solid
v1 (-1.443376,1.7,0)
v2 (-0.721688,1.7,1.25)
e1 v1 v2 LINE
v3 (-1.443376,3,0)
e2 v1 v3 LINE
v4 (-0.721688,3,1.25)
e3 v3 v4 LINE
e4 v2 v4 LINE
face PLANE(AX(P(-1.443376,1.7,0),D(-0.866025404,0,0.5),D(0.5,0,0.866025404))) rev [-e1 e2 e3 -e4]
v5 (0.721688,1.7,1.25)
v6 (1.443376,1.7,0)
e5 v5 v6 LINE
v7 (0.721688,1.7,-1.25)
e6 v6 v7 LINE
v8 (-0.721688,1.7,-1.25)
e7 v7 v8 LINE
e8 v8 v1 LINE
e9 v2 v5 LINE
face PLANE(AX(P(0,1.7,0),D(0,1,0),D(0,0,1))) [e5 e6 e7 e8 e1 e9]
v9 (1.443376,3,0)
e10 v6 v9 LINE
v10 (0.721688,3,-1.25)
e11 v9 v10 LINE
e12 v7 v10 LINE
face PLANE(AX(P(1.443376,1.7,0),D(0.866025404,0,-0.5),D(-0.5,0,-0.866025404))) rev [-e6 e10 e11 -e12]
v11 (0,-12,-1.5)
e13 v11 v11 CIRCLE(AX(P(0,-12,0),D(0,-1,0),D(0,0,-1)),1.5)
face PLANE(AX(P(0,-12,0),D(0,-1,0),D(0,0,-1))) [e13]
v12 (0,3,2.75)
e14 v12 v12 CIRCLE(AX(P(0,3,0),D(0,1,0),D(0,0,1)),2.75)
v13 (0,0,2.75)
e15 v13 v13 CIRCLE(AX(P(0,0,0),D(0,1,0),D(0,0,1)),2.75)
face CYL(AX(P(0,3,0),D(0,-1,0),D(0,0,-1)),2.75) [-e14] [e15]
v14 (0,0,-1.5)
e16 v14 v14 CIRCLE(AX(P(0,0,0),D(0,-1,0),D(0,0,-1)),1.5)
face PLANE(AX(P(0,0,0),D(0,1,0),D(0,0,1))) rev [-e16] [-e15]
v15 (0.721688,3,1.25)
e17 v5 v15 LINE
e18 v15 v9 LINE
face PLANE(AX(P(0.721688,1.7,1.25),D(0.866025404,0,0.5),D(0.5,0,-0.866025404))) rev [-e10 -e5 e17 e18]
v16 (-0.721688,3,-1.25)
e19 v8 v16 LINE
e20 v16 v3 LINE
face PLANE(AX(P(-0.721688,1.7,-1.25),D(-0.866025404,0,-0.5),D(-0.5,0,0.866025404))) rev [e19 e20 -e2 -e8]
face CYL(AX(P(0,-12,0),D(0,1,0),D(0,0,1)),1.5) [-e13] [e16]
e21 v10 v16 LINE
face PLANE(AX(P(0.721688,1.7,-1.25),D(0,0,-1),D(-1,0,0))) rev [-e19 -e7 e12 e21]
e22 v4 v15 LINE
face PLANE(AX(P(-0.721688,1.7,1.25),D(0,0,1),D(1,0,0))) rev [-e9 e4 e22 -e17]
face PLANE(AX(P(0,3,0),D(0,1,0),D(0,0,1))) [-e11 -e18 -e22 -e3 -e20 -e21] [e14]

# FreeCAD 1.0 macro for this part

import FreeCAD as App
import Part
import Sketcher

V = App.Vector
Q = App.Units.Quantity

doc = App.newDocument("Part")
body = doc.addObject("PartDesign::Body", "Body")

sketch1 = doc.addObject("Sketcher::SketchObject", "Sketch")
body.addObject(sketch1)
sketch1.AttachmentSupport = (doc.XZ_Plane, [""])
sketch1.MapMode = "FlatFace"
sketch1.addGeometry(Part.Circle(V(0, 0, 0), V(0, 0, 1), 2.75), False)
sketch1.addConstraint([
    Sketcher.Constraint("Coincident", 0, 3, -1, 1),
    Sketcher.Constraint("Diameter", 0, 5.5),
])
pad1 = doc.addObject("PartDesign::Pad", "Pad")
body.addObject(pad1)
pad1.Profile = sketch1
pad1.Length = 3
pad1.Reversed = True

sketch2 = doc.addObject("Sketcher::SketchObject", "Sketch001")
body.addObject(sketch2)
sketch2.AttachmentSupport = (doc.XZ_Plane, [""])
sketch2.MapMode = "FlatFace"
sketch2.AttachmentOffset = App.Placement(V(0, 0, -3), App.Rotation())
sketch2.addGeometry([
    Part.LineSegment(V(1.443376, 0, 0), V(0.721688, -1.25, 0)),
    Part.LineSegment(V(0.721688, -1.25, 0), V(-0.721688, -1.25, 0)),
    Part.LineSegment(V(-0.721688, -1.25, 0), V(-1.443376, 0, 0)),
    Part.LineSegment(V(-1.443376, 0, 0), V(-0.721688, 1.25, 0)),
    Part.LineSegment(V(-0.721688, 1.25, 0), V(0.721688, 1.25, 0)),
    Part.LineSegment(V(0.721688, 1.25, 0), V(1.443376, 0, 0)),
], False)
sketch2.addConstraint([
    Sketcher.Constraint("Coincident", 0, 2, 1, 1),
    Sketcher.Constraint("Coincident", 1, 2, 2, 1),
    Sketcher.Constraint("Coincident", 2, 2, 3, 1),
    Sketcher.Constraint("Coincident", 3, 2, 4, 1),
    Sketcher.Constraint("Coincident", 4, 2, 5, 1),
    Sketcher.Constraint("Coincident", 5, 2, 0, 1),
    Sketcher.Constraint("Horizontal", 1),
    Sketcher.Constraint("Horizontal", 4),
    Sketcher.Constraint("Symmetric", 0, 2, 3, 2, -1, 1),
    Sketcher.Constraint("Symmetric", 2, 2, 5, 2, -1, 1),
    Sketcher.Constraint("PointOnObject", 2, 2, -1),
    Sketcher.Constraint("Parallel", 2, 5),
    Sketcher.Constraint("Vertical", 1, 2, 3, 2),
    Sketcher.Constraint("Angle", 0, Q("-120 deg")),
    Sketcher.Constraint("DistanceY", 1, 2, 3, 2, 2.5),
    Sketcher.Constraint("DistanceX", 1, 2, 1, 1, 1.443376),
])
pocket1 = doc.addObject("PartDesign::Pocket", "Pocket")
body.addObject(pocket1)
pocket1.Profile = sketch2
pocket1.Length = 1.3
pocket1.Reversed = True

sketch3 = doc.addObject("Sketcher::SketchObject", "Sketch002")
body.addObject(sketch3)
sketch3.AttachmentSupport = (doc.XZ_Plane, [""])
sketch3.MapMode = "FlatFace"
sketch3.addGeometry(Part.Circle(V(0, 0, 0), V(0, 0, 1), 1.5), False)
sketch3.addConstraint([
    Sketcher.Constraint("Coincident", 0, 3, -1, 1),
    Sketcher.Constraint("Diameter", 0, 3.0),
])
pad2 = doc.addObject("PartDesign::Pad", "Pad001")
body.addObject(pad2)
pad2.Profile = sketch3
pad2.Length = 12

doc.recompute()
